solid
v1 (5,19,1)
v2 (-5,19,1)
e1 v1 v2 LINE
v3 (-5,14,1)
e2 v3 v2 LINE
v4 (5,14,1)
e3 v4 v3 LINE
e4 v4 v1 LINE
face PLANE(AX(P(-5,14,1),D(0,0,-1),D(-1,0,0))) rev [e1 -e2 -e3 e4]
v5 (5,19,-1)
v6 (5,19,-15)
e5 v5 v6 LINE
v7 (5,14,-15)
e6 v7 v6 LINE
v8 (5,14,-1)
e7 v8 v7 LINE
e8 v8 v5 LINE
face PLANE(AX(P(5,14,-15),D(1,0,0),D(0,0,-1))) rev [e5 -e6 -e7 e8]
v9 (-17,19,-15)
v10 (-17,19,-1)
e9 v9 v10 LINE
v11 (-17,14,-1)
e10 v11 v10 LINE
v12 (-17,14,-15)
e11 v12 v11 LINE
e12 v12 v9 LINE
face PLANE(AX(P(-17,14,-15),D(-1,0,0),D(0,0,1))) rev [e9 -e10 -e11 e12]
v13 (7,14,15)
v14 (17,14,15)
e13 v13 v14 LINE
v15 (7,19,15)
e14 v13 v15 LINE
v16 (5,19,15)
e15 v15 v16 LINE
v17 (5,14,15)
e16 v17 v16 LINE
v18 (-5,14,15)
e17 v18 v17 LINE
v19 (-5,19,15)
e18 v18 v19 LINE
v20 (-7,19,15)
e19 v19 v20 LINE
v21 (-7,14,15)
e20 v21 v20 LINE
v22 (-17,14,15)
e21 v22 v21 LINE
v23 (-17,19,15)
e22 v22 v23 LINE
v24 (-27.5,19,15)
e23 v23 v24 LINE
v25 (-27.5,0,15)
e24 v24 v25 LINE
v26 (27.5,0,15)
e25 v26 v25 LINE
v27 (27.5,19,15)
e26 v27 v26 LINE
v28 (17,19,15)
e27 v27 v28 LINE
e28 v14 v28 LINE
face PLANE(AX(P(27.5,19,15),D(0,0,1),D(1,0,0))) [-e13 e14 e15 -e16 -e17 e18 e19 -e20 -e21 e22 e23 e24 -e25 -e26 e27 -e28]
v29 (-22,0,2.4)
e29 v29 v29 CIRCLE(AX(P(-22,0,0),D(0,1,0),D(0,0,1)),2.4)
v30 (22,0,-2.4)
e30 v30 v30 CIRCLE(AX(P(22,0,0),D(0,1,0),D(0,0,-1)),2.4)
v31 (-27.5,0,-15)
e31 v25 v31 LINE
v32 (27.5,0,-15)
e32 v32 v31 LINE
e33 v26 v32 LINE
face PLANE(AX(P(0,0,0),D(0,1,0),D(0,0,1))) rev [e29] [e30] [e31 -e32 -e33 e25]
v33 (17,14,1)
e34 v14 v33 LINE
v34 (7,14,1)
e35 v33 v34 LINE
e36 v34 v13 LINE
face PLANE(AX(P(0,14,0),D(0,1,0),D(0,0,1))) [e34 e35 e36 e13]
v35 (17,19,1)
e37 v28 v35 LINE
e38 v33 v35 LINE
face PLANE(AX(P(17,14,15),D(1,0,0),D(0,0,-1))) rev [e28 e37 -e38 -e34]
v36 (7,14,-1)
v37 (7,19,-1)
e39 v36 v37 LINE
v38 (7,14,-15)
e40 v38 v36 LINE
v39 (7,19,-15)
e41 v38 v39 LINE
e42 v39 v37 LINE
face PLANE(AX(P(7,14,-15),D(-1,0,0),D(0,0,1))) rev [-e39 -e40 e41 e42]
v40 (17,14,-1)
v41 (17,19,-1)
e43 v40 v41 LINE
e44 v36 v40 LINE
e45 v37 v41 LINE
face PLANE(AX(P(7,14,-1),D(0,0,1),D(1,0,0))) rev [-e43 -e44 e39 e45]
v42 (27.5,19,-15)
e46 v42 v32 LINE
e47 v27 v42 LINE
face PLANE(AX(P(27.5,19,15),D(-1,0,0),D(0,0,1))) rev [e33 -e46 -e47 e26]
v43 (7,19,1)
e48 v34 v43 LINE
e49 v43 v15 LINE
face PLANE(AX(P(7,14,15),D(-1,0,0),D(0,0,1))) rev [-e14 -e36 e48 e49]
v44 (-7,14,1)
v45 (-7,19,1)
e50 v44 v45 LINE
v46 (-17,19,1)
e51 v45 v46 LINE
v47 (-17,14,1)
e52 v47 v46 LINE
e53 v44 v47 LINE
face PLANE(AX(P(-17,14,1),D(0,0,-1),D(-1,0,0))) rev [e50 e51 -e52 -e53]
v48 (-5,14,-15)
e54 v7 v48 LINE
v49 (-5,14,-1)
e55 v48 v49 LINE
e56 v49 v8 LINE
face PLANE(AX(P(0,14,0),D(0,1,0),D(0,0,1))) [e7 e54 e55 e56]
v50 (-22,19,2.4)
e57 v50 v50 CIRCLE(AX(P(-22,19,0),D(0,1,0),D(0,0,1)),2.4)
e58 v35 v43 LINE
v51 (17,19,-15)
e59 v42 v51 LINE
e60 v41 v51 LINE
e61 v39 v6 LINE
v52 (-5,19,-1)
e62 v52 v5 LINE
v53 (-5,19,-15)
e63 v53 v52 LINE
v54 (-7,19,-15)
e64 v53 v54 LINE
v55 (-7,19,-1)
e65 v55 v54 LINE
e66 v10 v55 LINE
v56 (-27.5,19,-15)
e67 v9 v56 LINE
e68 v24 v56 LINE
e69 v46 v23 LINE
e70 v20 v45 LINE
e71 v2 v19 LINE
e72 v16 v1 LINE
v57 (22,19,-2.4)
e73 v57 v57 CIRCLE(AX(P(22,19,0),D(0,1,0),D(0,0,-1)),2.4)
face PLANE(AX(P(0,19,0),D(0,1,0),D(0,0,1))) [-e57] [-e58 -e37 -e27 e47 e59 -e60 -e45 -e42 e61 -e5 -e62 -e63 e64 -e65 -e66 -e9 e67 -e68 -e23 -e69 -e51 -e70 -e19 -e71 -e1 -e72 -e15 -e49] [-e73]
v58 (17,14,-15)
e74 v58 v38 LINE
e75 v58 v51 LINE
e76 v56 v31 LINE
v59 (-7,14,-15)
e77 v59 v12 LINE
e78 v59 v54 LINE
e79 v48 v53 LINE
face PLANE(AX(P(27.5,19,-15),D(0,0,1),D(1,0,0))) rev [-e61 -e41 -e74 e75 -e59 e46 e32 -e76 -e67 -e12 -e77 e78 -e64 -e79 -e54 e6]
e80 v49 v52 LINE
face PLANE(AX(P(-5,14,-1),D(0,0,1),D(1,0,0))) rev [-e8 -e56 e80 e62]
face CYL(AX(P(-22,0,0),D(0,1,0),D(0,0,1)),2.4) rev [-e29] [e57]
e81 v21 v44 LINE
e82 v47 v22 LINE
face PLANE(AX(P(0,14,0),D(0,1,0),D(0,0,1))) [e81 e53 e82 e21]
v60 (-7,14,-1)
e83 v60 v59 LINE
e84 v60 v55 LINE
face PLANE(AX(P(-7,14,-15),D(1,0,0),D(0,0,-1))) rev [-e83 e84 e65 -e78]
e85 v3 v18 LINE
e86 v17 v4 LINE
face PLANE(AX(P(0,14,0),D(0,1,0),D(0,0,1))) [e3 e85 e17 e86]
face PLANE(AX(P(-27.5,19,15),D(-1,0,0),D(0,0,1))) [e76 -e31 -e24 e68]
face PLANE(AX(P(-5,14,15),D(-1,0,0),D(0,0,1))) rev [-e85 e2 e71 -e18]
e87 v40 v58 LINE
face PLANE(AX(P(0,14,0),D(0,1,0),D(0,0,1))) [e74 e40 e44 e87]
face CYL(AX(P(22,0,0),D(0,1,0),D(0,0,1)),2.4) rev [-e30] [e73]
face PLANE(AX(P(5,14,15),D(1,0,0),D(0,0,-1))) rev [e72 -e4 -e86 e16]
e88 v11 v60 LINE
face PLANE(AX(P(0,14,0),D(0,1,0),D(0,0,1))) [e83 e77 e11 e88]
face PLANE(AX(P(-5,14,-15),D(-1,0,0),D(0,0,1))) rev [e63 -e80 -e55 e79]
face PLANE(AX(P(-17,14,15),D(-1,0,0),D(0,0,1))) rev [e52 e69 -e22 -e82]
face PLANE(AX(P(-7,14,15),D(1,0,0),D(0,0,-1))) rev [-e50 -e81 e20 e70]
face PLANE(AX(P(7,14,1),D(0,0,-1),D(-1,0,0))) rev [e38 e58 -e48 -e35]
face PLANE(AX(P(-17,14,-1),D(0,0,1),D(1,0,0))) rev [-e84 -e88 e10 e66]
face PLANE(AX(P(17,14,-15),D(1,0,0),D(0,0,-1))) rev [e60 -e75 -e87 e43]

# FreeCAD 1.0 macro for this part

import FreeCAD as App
import Part
import Sketcher
from FreeCAD import Vector
Q = App.Units.Quantity


def add_polygon(sketch, points):
    """Adds a closed chain of lines whose ends are joined by coincident constraints."""
    first, n = sketch.GeometryCount, len(points)
    for a, b in zip(points, points[1:] + points[:1]):
        sketch.addGeometry(Part.LineSegment(App.Vector(*a, 0), App.Vector(*b, 0)), False)
    for i in range(n):
        sketch.addConstraint(Sketcher.Constraint("Coincident", first + i, 2, first + (i + 1) % n, 1))

doc = App.newDocument("Part")
body = doc.addObject("PartDesign::Body", "Body")

sketch1 = body.newObject("Sketcher::SketchObject", "Sketch")
sketch1.AttachmentSupport = (doc.getObject("XZ_Plane"), [""])
sketch1.MapMode = "FlatFace"
add_polygon(sketch1, [(-28, -15), (-28, 15), (28, 15), (28, -15)])
sketch1.addConstraint(Sketcher.Constraint("Vertical", 0))
sketch1.addConstraint(Sketcher.Constraint("Horizontal", 1))
sketch1.addConstraint(Sketcher.Constraint("Vertical", 2))
sketch1.addConstraint(Sketcher.Constraint("Horizontal", 3))
sketch1.addConstraint(Sketcher.Constraint("Symmetric", 0, 2, 2, 2, -1, 1))
sketch1.addConstraint(Sketcher.Constraint("DistanceX", 1, 1, 1, 2, Q("55 mm")))
sketch1.addConstraint(Sketcher.Constraint("DistanceY", 0, 1, 0, 2, Q("30 mm")))
pad1 = body.newObject("PartDesign::Pad", "Pad")
pad1.Profile = sketch1
pad1.Length = 19
pad1.Reversed = True

sketch2 = body.newObject("Sketcher::SketchObject", "Sketch001")
sketch2.AttachmentSupport = (doc.getObject("XZ_Plane"), [""])
sketch2.MapMode = "FlatFace"
sketch2.AttachmentOffset = App.Placement(Vector(0, 0, -19), App.Rotation())
sketch2.addGeometry(Part.Circle(Vector(-22, 0, 0), Vector(0, 0, 1), 2.4), False)
sketch2.addGeometry(Part.Circle(Vector(22, 0, 0), Vector(0, 0, 1), 2.4), False)
sketch2.addConstraint(Sketcher.Constraint("Equal", 0, 1))
sketch2.addConstraint(Sketcher.Constraint("Symmetric", 0, 3, 1, 3, -1, 1))
sketch2.addConstraint(Sketcher.Constraint("PointOnObject", 0, 3, -1))
sketch2.addConstraint(Sketcher.Constraint("Diameter", 0, Q("4.8 mm")))
sketch2.addConstraint(Sketcher.Constraint("DistanceX", 0, 3, -1, 1, Q("22 mm")))
pocket1 = body.newObject("PartDesign::Pocket", "Pocket")
pocket1.Profile = sketch2
pocket1.Type = "ThroughAll"
pocket1.Reversed = True

sketch3 = body.newObject("Sketcher::SketchObject", "Sketch002")
sketch3.AttachmentSupport = (doc.getObject("XZ_Plane"), [""])
sketch3.MapMode = "FlatFace"
sketch3.AttachmentOffset = App.Placement(Vector(0, 0, -19), App.Rotation())
add_polygon(sketch3, [(-17, -15), (-17, -1), (-7, -1), (-7, -15)])
add_polygon(sketch3, [(-5, -15), (-5, -1), (5, -1), (5, -15)])
add_polygon(sketch3, [(7, -15), (7, -1), (17, -1), (17, -15)])
add_polygon(sketch3, [(7, 1), (7, 15), (17, 15), (17, 1)])
add_polygon(sketch3, [(-5, 1), (-5, 15), (5, 15), (5, 1)])
add_polygon(sketch3, [(-17, 1), (-17, 15), (-7, 15), (-7, 1)])
sketch3.addConstraint(Sketcher.Constraint("Vertical", 0))
sketch3.addConstraint(Sketcher.Constraint("Horizontal", 1))
sketch3.addConstraint(Sketcher.Constraint("Vertical", 2))
sketch3.addConstraint(Sketcher.Constraint("Horizontal", 3))
sketch3.addConstraint(Sketcher.Constraint("Vertical", 4))
sketch3.addConstraint(Sketcher.Constraint("Horizontal", 5))
sketch3.addConstraint(Sketcher.Constraint("Vertical", 6))
sketch3.addConstraint(Sketcher.Constraint("Horizontal", 7))
sketch3.addConstraint(Sketcher.Constraint("Vertical", 8))
sketch3.addConstraint(Sketcher.Constraint("Horizontal", 9))
sketch3.addConstraint(Sketcher.Constraint("Vertical", 10))
sketch3.addConstraint(Sketcher.Constraint("Horizontal", 11))
sketch3.addConstraint(Sketcher.Constraint("Vertical", 12))
sketch3.addConstraint(Sketcher.Constraint("Horizontal", 13))
sketch3.addConstraint(Sketcher.Constraint("Vertical", 14))
sketch3.addConstraint(Sketcher.Constraint("Horizontal", 15))
sketch3.addConstraint(Sketcher.Constraint("Vertical", 16))
sketch3.addConstraint(Sketcher.Constraint("Horizontal", 17))
sketch3.addConstraint(Sketcher.Constraint("Vertical", 18))
sketch3.addConstraint(Sketcher.Constraint("Horizontal", 19))
sketch3.addConstraint(Sketcher.Constraint("Vertical", 20))
sketch3.addConstraint(Sketcher.Constraint("Horizontal", 21))
sketch3.addConstraint(Sketcher.Constraint("Vertical", 22))
sketch3.addConstraint(Sketcher.Constraint("Horizontal", 23))
sketch3.addConstraint(Sketcher.Constraint("Symmetric", 2, 2, 12, 2, -1, 1))
sketch3.addConstraint(Sketcher.Constraint("Symmetric", 0, 2, 14, 2, -1, 1))
sketch3.addConstraint(Sketcher.Constraint("Symmetric", 6, 2, 16, 2, -1, 1))
sketch3.addConstraint(Sketcher.Constraint("Symmetric", 4, 2, 18, 2, -1, 1))
sketch3.addConstraint(Sketcher.Constraint("Symmetric", 10, 2, 20, 2, -1, 1))
sketch3.addConstraint(Sketcher.Constraint("Symmetric", 8, 2, 22, 2, -1, 1))
sketch3.addConstraint(Sketcher.Constraint("Symmetric", 1, 2, 8, 2, -2))
sketch3.addConstraint(Sketcher.Constraint("Symmetric", 3, 2, 10, 2, -2))
sketch3.addConstraint(Sketcher.Constraint("Horizontal", 1, 2, 4, 2))
sketch3.addConstraint(Sketcher.Constraint("Horizontal", 3, 2, 6, 2))
sketch3.addConstraint(Sketcher.Constraint("Vertical", 7, 2, 16, 2))
sketch3.addConstraint(Sketcher.Constraint("Equal", 3, 5))
sketch3.addConstraint(Sketcher.Constraint("DistanceX", 1, 1, 1, 2, Q("10 mm")))
sketch3.addConstraint(Sketcher.Constraint("DistanceY", 0, 1, 0, 2, Q("14 mm")))
sketch3.addConstraint(Sketcher.Constraint("DistanceX", 0, 2, -1, 1, Q("17 mm")))
sketch3.addConstraint(Sketcher.Constraint("DistanceY", 0, 2, -1, 1, Q("1 mm")))
pocket2 = body.newObject("PartDesign::Pocket", "Pocket001")
pocket2.Profile = sketch3
pocket2.Length = 5
pocket2.Reversed = True

doc.recompute()
